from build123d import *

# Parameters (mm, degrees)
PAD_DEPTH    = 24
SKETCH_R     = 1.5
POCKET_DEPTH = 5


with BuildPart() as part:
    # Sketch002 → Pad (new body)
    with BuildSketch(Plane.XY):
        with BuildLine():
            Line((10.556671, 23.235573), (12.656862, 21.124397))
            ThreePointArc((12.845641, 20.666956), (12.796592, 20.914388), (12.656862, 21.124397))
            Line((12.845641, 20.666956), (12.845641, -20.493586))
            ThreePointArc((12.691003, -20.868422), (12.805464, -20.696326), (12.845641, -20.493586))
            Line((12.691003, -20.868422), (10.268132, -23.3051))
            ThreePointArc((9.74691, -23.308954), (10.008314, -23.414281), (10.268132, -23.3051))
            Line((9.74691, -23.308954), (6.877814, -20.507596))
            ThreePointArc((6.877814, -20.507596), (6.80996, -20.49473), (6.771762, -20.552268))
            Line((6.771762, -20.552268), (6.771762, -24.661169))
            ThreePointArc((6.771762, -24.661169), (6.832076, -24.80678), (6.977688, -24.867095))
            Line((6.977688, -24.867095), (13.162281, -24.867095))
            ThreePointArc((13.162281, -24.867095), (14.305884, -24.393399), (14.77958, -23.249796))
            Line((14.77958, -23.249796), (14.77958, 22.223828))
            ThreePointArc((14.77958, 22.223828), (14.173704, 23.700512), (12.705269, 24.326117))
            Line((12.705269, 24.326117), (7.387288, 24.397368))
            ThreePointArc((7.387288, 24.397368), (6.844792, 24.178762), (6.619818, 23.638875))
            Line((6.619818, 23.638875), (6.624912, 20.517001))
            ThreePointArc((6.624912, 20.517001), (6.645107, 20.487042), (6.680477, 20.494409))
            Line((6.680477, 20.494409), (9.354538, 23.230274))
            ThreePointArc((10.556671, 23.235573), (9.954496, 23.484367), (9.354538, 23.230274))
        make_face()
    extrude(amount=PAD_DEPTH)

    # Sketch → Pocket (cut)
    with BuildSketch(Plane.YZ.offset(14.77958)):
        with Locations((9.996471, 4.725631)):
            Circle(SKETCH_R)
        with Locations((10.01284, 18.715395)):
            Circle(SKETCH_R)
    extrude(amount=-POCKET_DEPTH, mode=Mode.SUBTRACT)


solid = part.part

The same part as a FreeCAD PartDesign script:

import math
import FreeCAD as App
import Part
import Sketcher

V = App.Vector

doc = App.newDocument("Part")
body = doc.addObject("PartDesign::Body", "Body")

sketch1 = body.newObject("Sketcher::SketchObject", "Sketch")
sketch1.AttachmentSupport = (doc.getObject("XY_Plane"), [""])
sketch1.MapMode = "FlatFace"
sketch1.addGeometry([
    Part.LineSegment(V(10.556671, 23.235573, 0), V(12.656862, 21.124397, 0)),
    Part.ArcOfCircle(Part.Circle(V(12.197031, 20.666958, 0), V(0, 0, 1), 0.64861), math.radians(-0.000194), math.radians(44.850596)),
    Part.LineSegment(V(12.845641, 20.666956, 0), V(12.845641, -20.493586, 0)),
    Part.ArcOfCircle(Part.Circle(V(12.314035, -20.493588, 0), V(0, 0, 1), 0.531606), math.radians(-44.837303), math.radians(0.000267)),
    Part.LineSegment(V(12.691003, -20.868422, 0), V(10.268132, -23.3051, 0)),
    Part.ArcOfCircle(Part.Circle(V(10.005576, -23.044031, 0), V(0, 0, 1), 0.37026), math.radians(-134.315413), math.radians(-44.837294)),
    Part.LineSegment(V(9.74691, -23.308954, 0), V(6.877814, -20.507596, 0)),
    Part.ArcOfCircle(Part.Circle(V(6.834197, -20.552268, 0), V(0, 0, 1), 0.062435), math.radians(45.684754), math.radians(179.999558)),
    Part.LineSegment(V(6.771762, -20.552268, 0), V(6.771762, -24.661169, 0)),
    Part.ArcOfCircle(Part.Circle(V(6.977689, -24.661168, 0), V(0, 0, 1), 0.205927), math.radians(-179.999838), math.radians(-90.000162)),
    Part.LineSegment(V(6.977688, -24.867095, 0), V(13.162281, -24.867095, 0)),
    Part.ArcOfCircle(Part.Circle(V(13.162281, -23.249796, 0), V(0, 0, 1), 1.617299), math.radians(-89.999989), math.radians(-0.000011)),
    Part.LineSegment(V(14.77958, -23.249796, 0), V(14.77958, 22.223828, 0)),
    Part.ArcOfCircle(Part.Circle(V(12.677102, 22.223828, 0), V(0, 0, 1), 2.102478), math.radians(0.000003), math.radians(89.232389)),
    Part.LineSegment(V(12.705269, 24.326117, 0), V(7.387288, 24.397368, 0)),
    Part.ArcOfCircle(Part.Circle(V(7.377142, 23.640111, 0), V(0, 0, 1), 0.757325), math.radians(89.232341), math.radians(180.093543)),
    Part.LineSegment(V(6.619818, 23.638875, 0), V(6.624912, 20.517001, 0)),
    Part.ArcOfCircle(Part.Circle(V(6.657308, 20.517053, 0), V(0, 0, 1), 0.032396), math.radians(-179.908152), math.radians(-44.343876)),
    Part.LineSegment(V(6.680477, 20.494409, 0), V(9.354538, 23.230274, 0)),
    Part.ArcOfCircle(Part.Circle(V(9.958217, 22.640231, 0), V(0, 0, 1), 0.844144), math.radians(44.850621), math.radians(135.654495)),
], False)
sketch1.addConstraint([
    Sketcher.Constraint("Tangent", 0, 2, 1, 2),
    Sketcher.Constraint("Coincident", 1, 1, 2, 1),
    Sketcher.Constraint("Coincident", 2, 2, 3, 2),
    Sketcher.Constraint("Tangent", 3, 1, 4, 1),
    Sketcher.Constraint("Tangent", 4, 2, 5, 2),
    Sketcher.Constraint("Coincident", 5, 1, 6, 1),
    Sketcher.Constraint("Coincident", 6, 2, 7, 1),
    Sketcher.Constraint("Coincident", 7, 2, 8, 1),
    Sketcher.Constraint("Coincident", 8, 2, 9, 1),
    Sketcher.Constraint("Coincident", 9, 2, 10, 1),
    Sketcher.Constraint("Tangent", 10, 2, 11, 1),
    Sketcher.Constraint("Tangent", 11, 2, 12, 1),
    Sketcher.Constraint("Tangent", 12, 2, 13, 1),
    Sketcher.Constraint("Tangent", 13, 2, 14, 1),
    Sketcher.Constraint("Tangent", 14, 2, 15, 1),
    Sketcher.Constraint("Tangent", 15, 2, 16, 1),
    Sketcher.Constraint("Coincident", 16, 2, 17, 1),
    Sketcher.Constraint("Coincident", 17, 2, 18, 1),
    Sketcher.Constraint("Tangent", 18, 2, 19, 2),
    Sketcher.Constraint("Tangent", 19, 1, 0, 1),
    Sketcher.Constraint("Vertical", 2),
    Sketcher.Constraint("Vertical", 8),
    Sketcher.Constraint("Horizontal", 10),
    Sketcher.Constraint("Vertical", 12),
    Sketcher.Constraint("Horizontal", 9, 3, 8, 2),
    Sketcher.Constraint("Radius", 11, 1.617299),
    Sketcher.Constraint("Radius", 1, 0.64861),
    Sketcher.Constraint("Radius", 5, 0.37026),
    Sketcher.Constraint("DistanceY", 8, 2, 8, 1, 4.108901),
    Sketcher.Constraint("DistanceY", -1, 1, 16, 2, 20.517001),
    Sketcher.Constraint("Radius", 3, 0.531606),
    Sketcher.Constraint("Radius", 7, 0.062435),
    Sketcher.Constraint("Radius", 9, 0.205927),
    Sketcher.Constraint("Radius", 13, 2.102478),
    Sketcher.Constraint("Radius", 15, 0.757325),
    Sketcher.Constraint("Radius", 17, 0.032396),
    Sketcher.Constraint("Radius", 19, 0.844144),
    Sketcher.Constraint("DistanceY", 4, 2, -1, 1, 23.3051),
    Sketcher.Constraint("DistanceY", 9, 3, 7, 3, 4.1089),
    Sketcher.Constraint("DistanceY", 3, 3, 15, 3, 44.1337),
    Sketcher.Constraint("DistanceX", 15, 2, 19, 3, 3.338399),
    Sketcher.Constraint("DistanceY", 18, 2, 15, 2, 0.408601),
    Sketcher.Constraint("DistanceY", 18, 2, 19, 1, 0.005299),
    Sketcher.Constraint("DistanceX", 19, 1, 13, 2, 2.148598),
    Sketcher.Constraint("Distance", 14, 5.318458),
    Sketcher.Constraint("Distance", 16, 3.121878),
    Sketcher.Constraint("DistanceX", 10, 1, 10, 2, 6.184593),
    Sketcher.Constraint("DistanceY", 2, 2, 2, 1, 41.160542),
    Sketcher.Constraint("DistanceY", 12, 1, 12, 2, 45.473624),
    Sketcher.Constraint("DistanceX", -1, 1, 1, 3, 12.197031),
    Sketcher.Constraint("DistanceY", -1, 1, 1, 3, 20.666958),
    Sketcher.Constraint("DistanceY", 3, 3, -1, 1, 20.493588),
    Sketcher.Constraint("DistanceY", 5, 3, -1, 1, 23.044031),
    Sketcher.Constraint("DistanceY", 7, 3, -1, 1, 20.552268),
    Sketcher.Constraint("DistanceX", -1, 1, 9, 3, 6.977689),
    Sketcher.Constraint("DistanceX", -1, 1, 5, 1, 9.74691),
    Sketcher.Constraint("DistanceY", -1, 1, 17, 2, 20.494409),
    Sketcher.Constraint("DistanceY", 1, 1, 0, 2, 0.457441),
    Sketcher.Constraint("DistanceY", 5, 1, 6, 2, 2.801358),
])
pad1 = body.newObject("PartDesign::Pad", "Pad")
pad1.Profile = sketch1
pad1.Length = 24

sketch2 = body.newObject("Sketcher::SketchObject", "Sketch001")
sketch2.AttachmentSupport = (doc.getObject("YZ_Plane"), [""])
sketch2.MapMode = "FlatFace"
sketch2.AttachmentOffset = App.Placement(V(0, 0, 14.77958), App.Rotation())
sketch2.addGeometry([
    Part.Circle(V(9.996471, 4.725631, 0), V(0, 0, 1), 1.5),
    Part.Circle(V(10.01284, 18.715395, 0), V(0, 0, 1), 1.5),
], False)
sketch2.addConstraint([
    Sketcher.Constraint("Equal", 0, 1),
    Sketcher.Constraint("Diameter", 0, 3.0),
    Sketcher.Constraint("DistanceX", -1, 1, 0, 3, 9.996471),
    Sketcher.Constraint("DistanceY", -1, 1, 0, 3, 4.725631),
    Sketcher.Constraint("DistanceX", -1, 1, 1, 3, 10.01284),
    Sketcher.Constraint("DistanceY", -1, 1, 1, 3, 18.715395),
])
pocket1 = body.newObject("PartDesign::Pocket", "Pocket")
pocket1.Profile = sketch2
pocket1.Length = 5

doc.recompute()
